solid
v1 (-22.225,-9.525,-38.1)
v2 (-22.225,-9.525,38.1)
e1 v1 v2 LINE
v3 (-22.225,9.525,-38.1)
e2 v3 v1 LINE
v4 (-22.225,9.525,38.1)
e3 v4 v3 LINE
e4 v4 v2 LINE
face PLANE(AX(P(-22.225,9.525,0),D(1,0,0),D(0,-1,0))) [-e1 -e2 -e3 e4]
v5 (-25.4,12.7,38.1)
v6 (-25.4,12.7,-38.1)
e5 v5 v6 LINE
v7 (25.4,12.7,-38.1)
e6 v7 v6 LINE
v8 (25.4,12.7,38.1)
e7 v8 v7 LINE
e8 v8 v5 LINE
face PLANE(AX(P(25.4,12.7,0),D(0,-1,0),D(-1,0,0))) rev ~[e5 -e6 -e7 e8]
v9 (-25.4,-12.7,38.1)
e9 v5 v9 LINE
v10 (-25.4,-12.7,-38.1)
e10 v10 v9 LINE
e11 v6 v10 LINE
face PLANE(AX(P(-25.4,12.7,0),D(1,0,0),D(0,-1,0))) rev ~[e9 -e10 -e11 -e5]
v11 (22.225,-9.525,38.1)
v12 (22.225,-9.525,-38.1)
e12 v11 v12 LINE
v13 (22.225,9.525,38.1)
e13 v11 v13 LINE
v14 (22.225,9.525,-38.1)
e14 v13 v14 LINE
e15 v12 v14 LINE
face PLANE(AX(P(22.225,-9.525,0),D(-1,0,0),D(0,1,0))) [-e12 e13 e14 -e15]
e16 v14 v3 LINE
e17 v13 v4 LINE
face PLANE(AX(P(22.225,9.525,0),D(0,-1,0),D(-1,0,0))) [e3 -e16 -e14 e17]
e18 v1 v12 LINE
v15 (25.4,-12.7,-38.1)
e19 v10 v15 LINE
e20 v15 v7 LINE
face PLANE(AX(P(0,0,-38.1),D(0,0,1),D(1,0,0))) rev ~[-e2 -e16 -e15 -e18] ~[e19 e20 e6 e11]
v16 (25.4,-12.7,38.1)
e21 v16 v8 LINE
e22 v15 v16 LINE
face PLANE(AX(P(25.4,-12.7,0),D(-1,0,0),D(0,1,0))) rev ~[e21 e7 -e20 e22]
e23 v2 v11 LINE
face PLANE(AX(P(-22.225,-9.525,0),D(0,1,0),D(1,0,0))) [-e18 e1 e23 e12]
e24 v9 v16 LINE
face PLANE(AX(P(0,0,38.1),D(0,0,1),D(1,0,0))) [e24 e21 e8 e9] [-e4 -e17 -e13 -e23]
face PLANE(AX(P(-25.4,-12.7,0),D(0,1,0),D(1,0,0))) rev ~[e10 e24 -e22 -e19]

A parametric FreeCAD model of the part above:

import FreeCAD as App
import Part
import Sketcher
from FreeCAD import Vector
Q = App.Units.Quantity

doc = App.newDocument("Part")
body = doc.addObject("PartDesign::Body", "Body")

# Sketch on XY plane
sketch1 = body.newObject("Sketcher::SketchObject", "Sketch")
sketch1.AttachmentSupport = (doc.getObject("XY_Plane"), [""])
sketch1.MapMode = "FlatFace"
sketch1.addGeometry([
    Part.LineSegment(Vector(-25, 13, 0), Vector(-25, -13, 0)),  # 0
    Part.LineSegment(Vector(-25, -13, 0), Vector(25, -13, 0)),  # 1
    Part.LineSegment(Vector(25, -13, 0), Vector(25, 13, 0)),  # 2
    Part.LineSegment(Vector(25, 13, 0), Vector(-25, 13, 0)),  # 3
    Part.LineSegment(Vector(22, -10, 0), Vector(-22, -10, 0)),  # 4
    Part.LineSegment(Vector(-22, -10, 0), Vector(-22, 10, 0)),  # 5
    Part.LineSegment(Vector(-22, 10, 0), Vector(22, 10, 0)),  # 6
    Part.LineSegment(Vector(22, 10, 0), Vector(22, -10, 0)),  # 7
], False)
sketch1.addConstraint([
    Sketcher.Constraint("Coincident", 0, 2, 1, 1),
    Sketcher.Constraint("Coincident", 1, 2, 2, 1),
    Sketcher.Constraint("Coincident", 2, 2, 3, 1),
    Sketcher.Constraint("Coincident", 3, 2, 0, 1),
    Sketcher.Constraint("Coincident", 4, 2, 5, 1),
    Sketcher.Constraint("Coincident", 5, 2, 6, 1),
    Sketcher.Constraint("Coincident", 6, 2, 7, 1),
    Sketcher.Constraint("Coincident", 7, 2, 4, 1),
    Sketcher.Constraint("Vertical", 0),
    Sketcher.Constraint("Horizontal", 1),
    Sketcher.Constraint("Vertical", 2),
    Sketcher.Constraint("Horizontal", 3),
    Sketcher.Constraint("Horizontal", 4),
    Sketcher.Constraint("Vertical", 5),
    Sketcher.Constraint("Horizontal", 6),
    Sketcher.Constraint("Vertical", 7),
    Sketcher.Constraint("Symmetric", 0, 2, 2, 2, -1, 1),
    Sketcher.Constraint("Symmetric", 4, 2, 6, 2, -1, 1),
    Sketcher.Constraint("DistanceX", 1, 1, 1, 2, Q("2 in")),
    Sketcher.Constraint("DistanceY", 0, 2, 0, 1, Q("1 in")),
    Sketcher.Constraint("DistanceX", 0, 2, 4, 2, Q("0.125 in")),
    Sketcher.Constraint("DistanceY", 0, 2, 4, 2, Q("0.125 in")),
])
pad1 = body.newObject("PartDesign::Pad", "Pad")
pad1.Profile = sketch1
pad1.Length = Q("3 in")
pad1.Midplane = True

doc.recompute()
